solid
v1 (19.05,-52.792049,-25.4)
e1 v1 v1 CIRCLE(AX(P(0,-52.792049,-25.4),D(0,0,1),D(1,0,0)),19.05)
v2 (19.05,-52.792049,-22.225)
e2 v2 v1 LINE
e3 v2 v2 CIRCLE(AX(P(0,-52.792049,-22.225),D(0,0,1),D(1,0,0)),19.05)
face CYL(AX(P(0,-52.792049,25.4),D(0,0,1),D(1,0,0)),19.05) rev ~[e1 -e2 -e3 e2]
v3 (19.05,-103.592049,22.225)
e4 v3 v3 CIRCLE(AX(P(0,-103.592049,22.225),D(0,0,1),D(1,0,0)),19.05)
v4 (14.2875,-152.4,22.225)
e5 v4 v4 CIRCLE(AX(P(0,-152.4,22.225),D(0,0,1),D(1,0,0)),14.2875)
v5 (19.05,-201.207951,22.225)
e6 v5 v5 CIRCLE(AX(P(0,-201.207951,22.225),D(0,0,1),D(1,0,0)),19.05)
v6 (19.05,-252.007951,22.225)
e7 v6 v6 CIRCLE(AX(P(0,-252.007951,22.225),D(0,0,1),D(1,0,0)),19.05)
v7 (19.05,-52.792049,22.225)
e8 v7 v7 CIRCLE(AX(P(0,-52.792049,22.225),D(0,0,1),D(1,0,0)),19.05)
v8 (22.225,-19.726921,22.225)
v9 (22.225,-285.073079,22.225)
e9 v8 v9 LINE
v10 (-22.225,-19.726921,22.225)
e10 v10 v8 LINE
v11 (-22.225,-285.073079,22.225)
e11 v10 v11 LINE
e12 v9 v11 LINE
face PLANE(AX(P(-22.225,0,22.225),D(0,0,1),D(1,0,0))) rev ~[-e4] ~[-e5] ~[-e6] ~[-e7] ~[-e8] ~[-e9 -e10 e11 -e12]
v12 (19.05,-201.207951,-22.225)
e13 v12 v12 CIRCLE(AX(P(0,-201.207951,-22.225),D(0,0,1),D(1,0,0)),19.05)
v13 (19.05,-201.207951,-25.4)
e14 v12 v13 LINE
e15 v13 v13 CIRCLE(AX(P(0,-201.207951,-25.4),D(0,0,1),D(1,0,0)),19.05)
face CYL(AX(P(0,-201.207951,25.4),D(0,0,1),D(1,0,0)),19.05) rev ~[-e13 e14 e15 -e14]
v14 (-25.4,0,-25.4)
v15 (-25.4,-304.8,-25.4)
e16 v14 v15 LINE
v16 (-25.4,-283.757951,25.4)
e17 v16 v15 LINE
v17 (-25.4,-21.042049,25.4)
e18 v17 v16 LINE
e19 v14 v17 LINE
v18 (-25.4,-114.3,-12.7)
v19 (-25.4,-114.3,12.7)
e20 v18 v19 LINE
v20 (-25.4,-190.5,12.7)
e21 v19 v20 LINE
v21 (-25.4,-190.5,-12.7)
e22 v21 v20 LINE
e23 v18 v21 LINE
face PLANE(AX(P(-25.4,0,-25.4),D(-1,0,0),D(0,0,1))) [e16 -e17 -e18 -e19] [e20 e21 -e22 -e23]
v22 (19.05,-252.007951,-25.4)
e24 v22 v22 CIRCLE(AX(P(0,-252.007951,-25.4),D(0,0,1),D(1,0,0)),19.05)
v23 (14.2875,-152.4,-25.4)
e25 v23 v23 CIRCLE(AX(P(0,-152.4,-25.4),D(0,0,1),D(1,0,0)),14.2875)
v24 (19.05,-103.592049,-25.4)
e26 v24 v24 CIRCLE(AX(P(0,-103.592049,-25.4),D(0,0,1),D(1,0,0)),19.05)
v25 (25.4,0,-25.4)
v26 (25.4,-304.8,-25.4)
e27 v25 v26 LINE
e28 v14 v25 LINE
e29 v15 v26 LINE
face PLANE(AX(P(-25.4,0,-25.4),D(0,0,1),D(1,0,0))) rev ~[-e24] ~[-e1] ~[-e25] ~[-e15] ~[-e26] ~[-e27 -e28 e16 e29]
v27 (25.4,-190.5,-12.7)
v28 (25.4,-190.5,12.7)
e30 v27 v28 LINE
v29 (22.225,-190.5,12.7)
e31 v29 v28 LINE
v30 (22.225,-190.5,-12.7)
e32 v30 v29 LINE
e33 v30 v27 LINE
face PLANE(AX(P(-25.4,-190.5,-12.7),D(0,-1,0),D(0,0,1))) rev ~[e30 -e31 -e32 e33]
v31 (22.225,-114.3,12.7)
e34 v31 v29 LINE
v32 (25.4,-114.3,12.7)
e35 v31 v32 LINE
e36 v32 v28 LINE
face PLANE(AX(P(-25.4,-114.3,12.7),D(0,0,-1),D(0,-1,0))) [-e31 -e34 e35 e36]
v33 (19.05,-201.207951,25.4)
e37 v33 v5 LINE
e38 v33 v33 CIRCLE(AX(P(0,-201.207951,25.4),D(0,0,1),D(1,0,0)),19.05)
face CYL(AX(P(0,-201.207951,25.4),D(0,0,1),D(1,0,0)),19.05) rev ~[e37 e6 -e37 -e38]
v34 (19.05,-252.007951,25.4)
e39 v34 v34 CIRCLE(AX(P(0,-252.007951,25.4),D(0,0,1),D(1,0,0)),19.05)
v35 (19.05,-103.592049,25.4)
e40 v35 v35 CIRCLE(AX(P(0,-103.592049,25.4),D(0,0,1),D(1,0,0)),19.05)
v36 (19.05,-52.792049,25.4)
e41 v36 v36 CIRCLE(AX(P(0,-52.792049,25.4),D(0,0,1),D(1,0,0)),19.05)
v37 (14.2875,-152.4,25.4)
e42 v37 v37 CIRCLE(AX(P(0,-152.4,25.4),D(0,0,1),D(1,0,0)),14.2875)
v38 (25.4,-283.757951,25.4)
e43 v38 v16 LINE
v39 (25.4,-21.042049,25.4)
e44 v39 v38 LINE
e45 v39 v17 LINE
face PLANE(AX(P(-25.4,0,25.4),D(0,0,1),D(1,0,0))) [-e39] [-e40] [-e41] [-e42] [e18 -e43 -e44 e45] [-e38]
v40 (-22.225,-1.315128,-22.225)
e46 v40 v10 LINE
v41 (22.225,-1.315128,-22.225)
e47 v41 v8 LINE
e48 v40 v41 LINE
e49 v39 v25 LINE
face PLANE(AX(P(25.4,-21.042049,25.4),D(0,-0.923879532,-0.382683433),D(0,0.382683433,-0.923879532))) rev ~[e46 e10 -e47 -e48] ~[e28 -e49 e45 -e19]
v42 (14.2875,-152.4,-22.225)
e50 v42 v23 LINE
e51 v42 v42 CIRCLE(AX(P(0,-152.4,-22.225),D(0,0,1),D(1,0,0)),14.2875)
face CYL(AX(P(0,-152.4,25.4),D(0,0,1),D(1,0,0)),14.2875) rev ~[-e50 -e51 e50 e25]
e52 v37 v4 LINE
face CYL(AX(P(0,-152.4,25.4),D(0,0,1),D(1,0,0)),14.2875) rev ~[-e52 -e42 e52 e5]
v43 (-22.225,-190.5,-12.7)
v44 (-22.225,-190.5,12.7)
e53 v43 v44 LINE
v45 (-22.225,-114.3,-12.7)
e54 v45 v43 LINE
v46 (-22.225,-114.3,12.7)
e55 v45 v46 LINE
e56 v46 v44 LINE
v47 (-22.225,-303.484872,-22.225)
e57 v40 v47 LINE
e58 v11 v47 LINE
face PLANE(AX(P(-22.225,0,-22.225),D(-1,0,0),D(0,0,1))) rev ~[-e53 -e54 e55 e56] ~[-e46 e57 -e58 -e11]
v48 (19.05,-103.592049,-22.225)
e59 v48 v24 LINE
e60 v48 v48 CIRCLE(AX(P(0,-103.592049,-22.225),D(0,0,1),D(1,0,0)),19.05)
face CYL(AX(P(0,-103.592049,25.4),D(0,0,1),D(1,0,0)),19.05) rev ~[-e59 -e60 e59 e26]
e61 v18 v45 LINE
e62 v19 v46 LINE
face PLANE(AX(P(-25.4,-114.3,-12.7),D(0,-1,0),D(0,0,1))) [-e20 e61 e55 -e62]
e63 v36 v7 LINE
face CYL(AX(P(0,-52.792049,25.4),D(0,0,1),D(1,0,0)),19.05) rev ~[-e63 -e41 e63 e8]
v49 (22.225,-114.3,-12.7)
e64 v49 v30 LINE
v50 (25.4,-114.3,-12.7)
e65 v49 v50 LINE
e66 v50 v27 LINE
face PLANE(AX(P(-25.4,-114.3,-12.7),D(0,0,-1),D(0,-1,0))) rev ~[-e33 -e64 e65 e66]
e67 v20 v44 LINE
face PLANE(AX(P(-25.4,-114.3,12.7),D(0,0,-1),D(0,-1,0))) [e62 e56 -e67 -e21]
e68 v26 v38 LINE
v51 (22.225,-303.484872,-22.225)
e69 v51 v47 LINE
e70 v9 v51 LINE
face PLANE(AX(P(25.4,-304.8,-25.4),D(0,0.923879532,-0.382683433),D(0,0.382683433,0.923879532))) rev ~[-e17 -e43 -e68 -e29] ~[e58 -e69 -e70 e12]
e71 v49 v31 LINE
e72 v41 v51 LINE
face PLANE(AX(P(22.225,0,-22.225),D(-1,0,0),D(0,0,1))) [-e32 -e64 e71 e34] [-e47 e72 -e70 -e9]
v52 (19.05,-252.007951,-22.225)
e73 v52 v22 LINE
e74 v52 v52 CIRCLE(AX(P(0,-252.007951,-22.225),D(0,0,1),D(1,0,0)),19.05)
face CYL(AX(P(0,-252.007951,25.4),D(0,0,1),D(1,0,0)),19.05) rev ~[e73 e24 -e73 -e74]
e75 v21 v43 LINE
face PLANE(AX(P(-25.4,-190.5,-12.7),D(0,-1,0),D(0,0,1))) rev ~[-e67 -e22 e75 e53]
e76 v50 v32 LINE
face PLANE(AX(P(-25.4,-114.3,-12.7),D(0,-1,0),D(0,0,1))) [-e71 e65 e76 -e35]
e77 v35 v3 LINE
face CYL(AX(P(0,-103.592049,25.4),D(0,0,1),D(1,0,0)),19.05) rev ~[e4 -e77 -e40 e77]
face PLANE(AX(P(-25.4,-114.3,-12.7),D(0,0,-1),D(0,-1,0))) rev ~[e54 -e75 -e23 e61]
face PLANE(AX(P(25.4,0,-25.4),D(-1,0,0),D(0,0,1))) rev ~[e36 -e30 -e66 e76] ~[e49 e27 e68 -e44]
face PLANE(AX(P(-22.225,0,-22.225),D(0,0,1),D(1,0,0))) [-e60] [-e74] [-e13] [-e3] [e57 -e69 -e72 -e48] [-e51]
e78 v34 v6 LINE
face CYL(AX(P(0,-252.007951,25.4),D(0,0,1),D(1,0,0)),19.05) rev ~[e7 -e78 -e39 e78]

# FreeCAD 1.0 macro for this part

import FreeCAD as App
import Part
import Sketcher

V = App.Vector
Q = App.Units.Quantity

doc = App.newDocument("Part")
body = doc.addObject("PartDesign::Body", "Body")

# Sketch on XZ plane
sketch1 = doc.addObject("Sketcher::SketchObject", "Sketch")
body.addObject(sketch1)
sketch1.AttachmentSupport = (doc.XZ_Plane, [""])
sketch1.MapMode = "FlatFace"
sketch1.addGeometry([
    Part.LineSegment(V(-25, 25, 0), V(-25, -25, 0)),  # 0
    Part.LineSegment(V(-25, -25, 0), V(25, -25, 0)),  # 1
    Part.LineSegment(V(25, -25, 0), V(25, 25, 0)),  # 2
    Part.LineSegment(V(25, 25, 0), V(-25, 25, 0)),  # 3
    Part.LineSegment(V(22, -22, 0), V(-22, -22, 0)),  # 4
    Part.LineSegment(V(-22, -22, 0), V(-22, 22, 0)),  # 5
    Part.LineSegment(V(-22, 22, 0), V(22, 22, 0)),  # 6
    Part.LineSegment(V(22, 22, 0), V(22, -22, 0)),  # 7
], False)
sketch1.addConstraint([
    Sketcher.Constraint("Coincident", 0, 2, 1, 1),
    Sketcher.Constraint("Coincident", 1, 2, 2, 1),
    Sketcher.Constraint("Coincident", 2, 2, 3, 1),
    Sketcher.Constraint("Coincident", 3, 2, 0, 1),
    Sketcher.Constraint("Coincident", 4, 2, 5, 1),
    Sketcher.Constraint("Coincident", 5, 2, 6, 1),
    Sketcher.Constraint("Coincident", 6, 2, 7, 1),
    Sketcher.Constraint("Coincident", 7, 2, 4, 1),
    Sketcher.Constraint("Vertical", 0),
    Sketcher.Constraint("Horizontal", 1),
    Sketcher.Constraint("Vertical", 2),
    Sketcher.Constraint("Horizontal", 3),
    Sketcher.Constraint("Horizontal", 4),
    Sketcher.Constraint("Vertical", 5),
    Sketcher.Constraint("Horizontal", 6),
    Sketcher.Constraint("Vertical", 7),
    Sketcher.Constraint("Symmetric", 0, 2, 2, 2, -1, 1),
    Sketcher.Constraint("Symmetric", 4, 2, 6, 2, -1, 1),
    Sketcher.Constraint("Equal", 3, 0),
    Sketcher.Constraint("Equal", 6, 5),
    Sketcher.Constraint("DistanceX", 1, 1, 1, 2, Q("2 in")),
    Sketcher.Constraint("DistanceX", 4, 2, 4, 1, Q("1.75 in")),
])
pad1 = doc.addObject("PartDesign::Pad", "Pad")
body.addObject(pad1)
pad1.Profile = sketch1
pad1.Length = Q("12 in")

# Sketch on YZ plane
sketch2 = doc.addObject("Sketcher::SketchObject", "Sketch001")
body.addObject(sketch2)
sketch2.AttachmentSupport = (doc.YZ_Plane, [""])
sketch2.MapMode = "FlatFace"
sketch2.AttachmentOffset = App.Placement(V(0, 0, 1 * 25.4), App.Rotation())
sketch2.addGeometry([
    Part.LineSegment(V(-284, 25, 0), V(-305, 25, 0)),
    Part.LineSegment(V(-305, 25, 0), V(-305, -25, 0)),
    Part.LineSegment(V(-305, -25, 0), V(-284, 25, 0)),
], False)
sketch2.addConstraint([
    Sketcher.Constraint("Coincident", 0, 2, 1, 1),
    Sketcher.Constraint("Coincident", 1, 2, 2, 1),
    Sketcher.Constraint("Coincident", 2, 2, 0, 1),
    Sketcher.Constraint("Horizontal", 0),
    Sketcher.Constraint("Vertical", 1),
    Sketcher.Constraint("DistanceY", 1, 2, 1, 1, Q("2 in")),
    Sketcher.Constraint("DistanceX", 0, 2, -1, 1, Q("12 in")),
    Sketcher.Constraint("DistanceY", -1, 1, 0, 2, Q("1 in")),
    Sketcher.Constraint("Angle", 2, Q("67.5 deg")),
])
pocket1 = doc.addObject("PartDesign::Pocket", "Pocket")
body.addObject(pocket1)
pocket1.Profile = sketch2
pocket1.Type = "ThroughAll"

# Sketch on YZ plane
sketch3 = doc.addObject("Sketcher::SketchObject", "Sketch002")
body.addObject(sketch3)
sketch3.AttachmentSupport = (doc.YZ_Plane, [""])
sketch3.MapMode = "FlatFace"
sketch3.AttachmentOffset = App.Placement(V(0, 0, 1 * 25.4), App.Rotation())
sketch3.addGeometry([
    Part.LineSegment(V(0, -25, 0), V(0, 25, 0)),
    Part.LineSegment(V(0, 25, 0), V(-21, 25, 0)),
    Part.LineSegment(V(-21, 25, 0), V(0, -25, 0)),
], False)
sketch3.addConstraint([
    Sketcher.Constraint("Coincident", 0, 2, 1, 1),
    Sketcher.Constraint("Coincident", 1, 2, 2, 1),
    Sketcher.Constraint("Coincident", 2, 2, 0, 1),
    Sketcher.Constraint("Vertical", 0),
    Sketcher.Constraint("Horizontal", 1),
    Sketcher.Constraint("Symmetric", 0, 2, 2, 2, -1, 1),
    Sketcher.Constraint("DistanceY", 0, 1, 0, 2, Q("2 in")),
    Sketcher.Constraint("Angle", 2, Q("-67.5 deg")),
])
pocket2 = doc.addObject("PartDesign::Pocket", "Pocket001")
body.addObject(pocket2)
pocket2.Profile = sketch3
pocket2.Length = Q("5 in")

# Sketch on XY plane
sketch4 = doc.addObject("Sketcher::SketchObject", "Sketch003")
body.addObject(sketch4)
sketch4.AttachmentSupport = (doc.XY_Plane, [""])
sketch4.MapMode = "FlatFace"
sketch4.AttachmentOffset = App.Placement(V(0, 0, 1 * 25.4), App.Rotation())
sketch4.addGeometry(Part.Circle(V(0, -152, 0), V(0, 0, 1), 14), False)
sketch4.addConstraint([
    Sketcher.Constraint("PointOnObject", 0, 3, -2),
    Sketcher.Constraint("Diameter", 0, Q("1.125 in")),
    Sketcher.Constraint("DistanceY", 0, 3, -1, 1, Q("6 in")),
])
pocket3 = doc.addObject("PartDesign::Pocket", "Pocket002")
body.addObject(pocket3)
pocket3.Profile = sketch4
pocket3.Type = "ThroughAll"

# Sketch on YZ plane
sketch5 = doc.addObject("Sketcher::SketchObject", "Sketch004")
body.addObject(sketch5)
sketch5.AttachmentSupport = (doc.YZ_Plane, [""])
sketch5.MapMode = "FlatFace"
sketch5.AttachmentOffset = App.Placement(V(0, 0, -1 * 25.4), App.Rotation())
sketch5.addGeometry([
    Part.LineSegment(V(-114, 13, 0), V(-114, -13, 0)),
    Part.LineSegment(V(-114, -13, 0), V(-190, -13, 0)),
    Part.LineSegment(V(-190, -13, 0), V(-190, 13, 0)),
    Part.LineSegment(V(-190, 13, 0), V(-114, 13, 0)),
], False)
sketch5.addConstraint([
    Sketcher.Constraint("Coincident", 0, 2, 1, 1),
    Sketcher.Constraint("Coincident", 1, 2, 2, 1),
    Sketcher.Constraint("Coincident", 2, 2, 3, 1),
    Sketcher.Constraint("Coincident", 3, 2, 0, 1),
    Sketcher.Constraint("Vertical", 0),
    Sketcher.Constraint("Horizontal", 1),
    Sketcher.Constraint("Vertical", 2),
    Sketcher.Constraint("Horizontal", 3),
    Sketcher.Constraint("DistanceX", 1, 2, 1, 1, Q("3 in")),
    Sketcher.Constraint("DistanceY", 0, 2, 0, 1, Q("1 in")),
    Sketcher.Constraint("DistanceX", 0, 2, -1, 1, Q("4.5 in")),
    Sketcher.Constraint("DistanceY", 0, 2, -1, 1, Q("0.5 in")),
])
pocket4 = doc.addObject("PartDesign::Pocket", "Pocket003")
body.addObject(pocket4)
pocket4.Profile = sketch5
pocket4.Type = "ThroughAll"
pocket4.Reversed = True

# Sketch on XY plane
sketch6 = doc.addObject("Sketcher::SketchObject", "Sketch005")
body.addObject(sketch6)
sketch6.AttachmentSupport = (doc.XY_Plane, [""])
sketch6.MapMode = "FlatFace"
sketch6.AttachmentOffset = App.Placement(V(0, 0, 1 * 25.4), App.Rotation())
sketch6.addGeometry([
    Part.Circle(V(0, -252, 0), V(0, 0, 1), 19),
    Part.Circle(V(0, -201, 0), V(0, 0, 1), 19),
    Part.Circle(V(0, -104, 0), V(0, 0, 1), 19),
    Part.Circle(V(0, -53, 0), V(0, 0, 1), 19),
], False)
sketch6.addConstraint([
    Sketcher.Constraint("Equal", 0, 1),
    Sketcher.Constraint("Equal", 1, 2),
    Sketcher.Constraint("Equal", 2, 3),
    Sketcher.Constraint("PointOnObject", 0, 3, -2),
    Sketcher.Constraint("PointOnObject", 1, 3, -2),
    Sketcher.Constraint("PointOnObject", 2, 3, -2),
    Sketcher.Constraint("PointOnObject", 3, 3, -2),
    Sketcher.Constraint("Diameter", 0, Q("1.5 in")),
    Sketcher.Constraint("DistanceY", 0, 3, 1, 3, Q("2 in")),
    Sketcher.Constraint("DistanceY", 2, 3, 3, 3, Q("2 in")),
    Sketcher.Constraint("DistanceY", 0, 3, 2, 3, Q("148.415902 mm")),
    Sketcher.Constraint("DistanceY", 0, 3, -1, 1, Q("252.007951 mm")),
])
pocket5 = doc.addObject("PartDesign::Pocket", "Pocket004")
body.addObject(pocket5)
pocket5.Profile = sketch6
pocket5.Length = Q("2 in")

doc.recompute()
